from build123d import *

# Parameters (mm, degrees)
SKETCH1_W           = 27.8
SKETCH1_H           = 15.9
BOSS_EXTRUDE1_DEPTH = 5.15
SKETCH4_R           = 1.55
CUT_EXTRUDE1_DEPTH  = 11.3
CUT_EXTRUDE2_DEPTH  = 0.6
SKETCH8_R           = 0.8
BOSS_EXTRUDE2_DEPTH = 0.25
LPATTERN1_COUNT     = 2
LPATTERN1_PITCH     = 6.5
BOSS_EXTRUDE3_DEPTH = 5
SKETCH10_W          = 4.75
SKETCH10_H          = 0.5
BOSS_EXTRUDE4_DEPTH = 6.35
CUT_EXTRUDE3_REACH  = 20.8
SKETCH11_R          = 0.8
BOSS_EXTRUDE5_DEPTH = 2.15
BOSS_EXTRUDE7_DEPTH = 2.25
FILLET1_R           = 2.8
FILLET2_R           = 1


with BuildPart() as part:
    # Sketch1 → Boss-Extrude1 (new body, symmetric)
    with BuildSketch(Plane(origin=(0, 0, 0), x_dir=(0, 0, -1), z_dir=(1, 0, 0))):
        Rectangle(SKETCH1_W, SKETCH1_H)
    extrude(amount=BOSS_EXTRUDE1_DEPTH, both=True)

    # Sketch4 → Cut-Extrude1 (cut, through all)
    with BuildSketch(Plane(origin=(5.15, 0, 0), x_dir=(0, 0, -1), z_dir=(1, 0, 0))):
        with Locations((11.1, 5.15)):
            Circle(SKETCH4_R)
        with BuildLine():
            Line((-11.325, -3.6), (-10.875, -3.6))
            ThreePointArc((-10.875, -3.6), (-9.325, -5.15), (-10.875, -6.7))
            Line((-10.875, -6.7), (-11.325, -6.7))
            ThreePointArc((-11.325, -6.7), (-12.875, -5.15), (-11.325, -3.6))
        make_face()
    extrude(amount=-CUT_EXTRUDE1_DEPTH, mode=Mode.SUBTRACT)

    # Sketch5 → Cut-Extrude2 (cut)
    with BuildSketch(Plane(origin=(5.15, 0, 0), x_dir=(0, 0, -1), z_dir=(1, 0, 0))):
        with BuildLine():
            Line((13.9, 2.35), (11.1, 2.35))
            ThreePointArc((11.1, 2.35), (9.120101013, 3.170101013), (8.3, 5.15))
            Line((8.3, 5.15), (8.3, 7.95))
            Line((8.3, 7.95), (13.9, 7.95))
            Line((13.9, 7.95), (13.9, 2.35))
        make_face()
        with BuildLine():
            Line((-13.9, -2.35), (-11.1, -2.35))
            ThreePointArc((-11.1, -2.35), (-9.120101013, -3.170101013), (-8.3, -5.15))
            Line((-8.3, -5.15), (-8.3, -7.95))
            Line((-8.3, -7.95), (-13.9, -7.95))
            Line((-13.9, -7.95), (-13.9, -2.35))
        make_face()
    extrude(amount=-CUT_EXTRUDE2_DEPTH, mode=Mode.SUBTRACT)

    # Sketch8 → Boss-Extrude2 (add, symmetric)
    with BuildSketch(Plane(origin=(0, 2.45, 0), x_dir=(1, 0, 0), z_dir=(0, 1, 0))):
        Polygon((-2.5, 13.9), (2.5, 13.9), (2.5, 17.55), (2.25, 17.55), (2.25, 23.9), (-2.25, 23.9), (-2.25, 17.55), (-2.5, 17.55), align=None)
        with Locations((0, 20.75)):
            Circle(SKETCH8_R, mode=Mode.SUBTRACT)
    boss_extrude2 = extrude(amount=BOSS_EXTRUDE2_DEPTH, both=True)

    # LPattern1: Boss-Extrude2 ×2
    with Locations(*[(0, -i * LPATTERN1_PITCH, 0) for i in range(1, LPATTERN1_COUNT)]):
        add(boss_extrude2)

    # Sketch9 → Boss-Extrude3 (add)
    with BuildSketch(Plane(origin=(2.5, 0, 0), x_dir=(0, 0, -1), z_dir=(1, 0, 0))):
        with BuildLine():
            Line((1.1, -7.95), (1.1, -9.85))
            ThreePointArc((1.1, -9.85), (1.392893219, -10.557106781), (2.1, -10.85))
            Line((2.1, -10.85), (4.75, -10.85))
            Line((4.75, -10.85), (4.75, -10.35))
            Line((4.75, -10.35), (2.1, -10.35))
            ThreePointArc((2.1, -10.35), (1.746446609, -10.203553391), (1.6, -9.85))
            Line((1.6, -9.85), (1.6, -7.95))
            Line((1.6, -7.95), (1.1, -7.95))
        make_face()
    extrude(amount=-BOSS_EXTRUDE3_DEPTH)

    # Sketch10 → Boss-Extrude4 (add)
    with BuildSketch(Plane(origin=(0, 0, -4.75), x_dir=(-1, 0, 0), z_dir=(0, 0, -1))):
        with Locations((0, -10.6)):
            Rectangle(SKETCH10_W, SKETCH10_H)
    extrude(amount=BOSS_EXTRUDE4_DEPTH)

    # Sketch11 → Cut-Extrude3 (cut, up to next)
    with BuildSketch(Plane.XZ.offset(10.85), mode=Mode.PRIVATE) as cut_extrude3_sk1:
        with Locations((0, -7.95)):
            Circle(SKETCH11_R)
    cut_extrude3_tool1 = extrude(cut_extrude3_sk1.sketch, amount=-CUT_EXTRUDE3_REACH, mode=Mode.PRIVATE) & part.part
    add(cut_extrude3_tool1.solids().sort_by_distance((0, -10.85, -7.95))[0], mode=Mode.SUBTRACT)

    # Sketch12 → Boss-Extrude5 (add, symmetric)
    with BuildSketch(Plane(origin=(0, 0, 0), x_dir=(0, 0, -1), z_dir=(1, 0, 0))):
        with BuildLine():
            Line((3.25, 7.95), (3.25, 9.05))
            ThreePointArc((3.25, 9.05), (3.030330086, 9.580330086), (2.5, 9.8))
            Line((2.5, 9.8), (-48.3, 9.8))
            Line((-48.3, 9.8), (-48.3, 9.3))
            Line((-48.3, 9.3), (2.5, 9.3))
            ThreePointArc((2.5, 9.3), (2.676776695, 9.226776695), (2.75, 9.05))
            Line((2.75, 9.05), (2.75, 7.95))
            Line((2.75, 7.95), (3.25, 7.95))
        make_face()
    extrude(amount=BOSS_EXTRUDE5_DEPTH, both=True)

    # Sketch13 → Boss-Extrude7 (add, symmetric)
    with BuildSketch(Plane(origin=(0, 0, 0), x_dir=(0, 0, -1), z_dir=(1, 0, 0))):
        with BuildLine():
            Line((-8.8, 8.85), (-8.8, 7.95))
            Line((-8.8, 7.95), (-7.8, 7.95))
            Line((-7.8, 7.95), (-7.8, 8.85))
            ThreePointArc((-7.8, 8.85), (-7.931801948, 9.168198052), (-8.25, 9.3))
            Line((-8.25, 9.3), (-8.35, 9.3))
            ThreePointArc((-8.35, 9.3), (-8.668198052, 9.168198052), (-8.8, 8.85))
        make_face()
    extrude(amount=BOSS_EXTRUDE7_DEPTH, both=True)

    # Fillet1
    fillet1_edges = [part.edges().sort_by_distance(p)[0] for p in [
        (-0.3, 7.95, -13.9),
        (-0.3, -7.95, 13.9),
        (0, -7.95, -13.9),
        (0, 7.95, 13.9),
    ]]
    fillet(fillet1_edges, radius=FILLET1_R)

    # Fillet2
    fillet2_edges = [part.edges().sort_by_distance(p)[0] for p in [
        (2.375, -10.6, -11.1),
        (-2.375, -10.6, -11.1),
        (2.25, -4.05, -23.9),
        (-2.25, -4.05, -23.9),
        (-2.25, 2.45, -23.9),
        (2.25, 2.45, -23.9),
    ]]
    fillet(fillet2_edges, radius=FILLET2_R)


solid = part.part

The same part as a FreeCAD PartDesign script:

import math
import FreeCAD as App
import Part
import Sketcher
from FreeCAD import Vector


def edges_at(feature, points):
    """Names of the edges that pass closest to the given points."""
    edges = feature.Shape.Edges
    near = lambda p: min(range(len(edges)), key=lambda i: edges[i].distToShape(Part.Vertex(*p))[0])
    return sorted({f"Edge{near(p) + 1}" for p in points})


def add_polygon(sketch, points):
    """Adds a closed chain of lines whose ends are joined by coincident constraints."""
    first, n = sketch.GeometryCount, len(points)
    for a, b in zip(points, points[1:] + points[:1]):
        sketch.addGeometry(Part.LineSegment(App.Vector(*a, 0), App.Vector(*b, 0)), False)
    for i in range(n):
        sketch.addConstraint(Sketcher.Constraint("Coincident", first + i, 2, first + (i + 1) % n, 1))

doc = App.newDocument("Part")
body = doc.addObject("PartDesign::Body", "Body")

sketch1 = body.newObject("Sketcher::SketchObject", "Sketch")
sketch1.AttachmentSupport = (doc.getObject("YZ_Plane"), [""])
sketch1.MapMode = "FlatFace"
add_polygon(sketch1, [(7.95, 13.9), (-7.95, 13.9), (-7.95, -13.9), (7.95, -13.9)])
sketch1.addConstraint(Sketcher.Constraint("Horizontal", 0))
sketch1.addConstraint(Sketcher.Constraint("Vertical", 1))
sketch1.addConstraint(Sketcher.Constraint("Horizontal", 2))
sketch1.addConstraint(Sketcher.Constraint("Vertical", 3))
sketch1.addConstraint(Sketcher.Constraint("Symmetric", 0, 2, 2, 2, -1, 1))
sketch1.addConstraint(Sketcher.Constraint("DistanceX", 0, 2, 0, 1, 15.9))
sketch1.addConstraint(Sketcher.Constraint("DistanceY", 1, 2, 1, 1, 27.8))
pad1 = body.newObject("PartDesign::Pad", "Pad")
pad1.Profile = sketch1
pad1.Length = 10.3
pad1.Midplane = True

sketch2 = body.newObject("Sketcher::SketchObject", "Sketch001")
sketch2.AttachmentSupport = (doc.getObject("YZ_Plane"), [""])
sketch2.MapMode = "FlatFace"
sketch2.AttachmentOffset = App.Placement(Vector(0, 0, 5.15), App.Rotation())
sketch2.addGeometry(Part.Circle(Vector(5.15, -11.1, 0), Vector(0, 0, 1), 1.55), False)
sketch2.addGeometry(Part.LineSegment(Vector(-3.6, 10.875, 0), Vector(-3.6, 11.325, 0)), False)
sketch2.addGeometry(Part.ArcOfCircle(Part.Circle(Vector(-5.15, 11.325, 0), Vector(0, 0, 1), 1.55), math.radians(0), math.radians(180)), False)
sketch2.addGeometry(Part.LineSegment(Vector(-6.7, 11.325, 0), Vector(-6.7, 10.875, 0)), False)
sketch2.addGeometry(Part.ArcOfCircle(Part.Circle(Vector(-5.15, 10.875, 0), Vector(0, 0, 1), 1.55), math.radians(180), math.radians(360)), False)
sketch2.addConstraint(Sketcher.Constraint("Tangent", 1, 2, 2, 1))
sketch2.addConstraint(Sketcher.Constraint("Tangent", 2, 2, 3, 1))
sketch2.addConstraint(Sketcher.Constraint("Tangent", 3, 2, 4, 1))
sketch2.addConstraint(Sketcher.Constraint("Tangent", 4, 2, 1, 1))
sketch2.addConstraint(Sketcher.Constraint("Vertical", 1))
sketch2.addConstraint(Sketcher.Constraint("Vertical", 3))
sketch2.addConstraint(Sketcher.Constraint("Equal", 0, 2))
sketch2.addConstraint(Sketcher.Constraint("Diameter", 0, 3.1))
sketch2.addConstraint(Sketcher.Constraint("DistanceY", 1, 1, 1, 2, 0.45))
sketch2.addConstraint(Sketcher.Constraint("DistanceY", 0, 3, -1, 1, 11.1))
sketch2.addConstraint(Sketcher.Constraint("DistanceX", 1, 2, -1, 1, 3.6))
sketch2.addConstraint(Sketcher.Constraint("DistanceX", 2, 3, 0, 3, 10.3))
sketch2.addConstraint(Sketcher.Constraint("DistanceY", -1, 1, 2, 3, 11.325))
pocket1 = body.newObject("PartDesign::Pocket", "Pocket")
pocket1.Profile = sketch2
pocket1.Type = "ThroughAll"

sketch3 = body.newObject("Sketcher::SketchObject", "Sketch002")
sketch3.AttachmentSupport = (doc.getObject("YZ_Plane"), [""])
sketch3.MapMode = "FlatFace"
sketch3.AttachmentOffset = App.Placement(Vector(0, 0, 5.15), App.Rotation())
sketch3.addGeometry(Part.LineSegment(Vector(2.35, -11.1, 0), Vector(2.35, -13.9, 0)), False)
sketch3.addGeometry(Part.LineSegment(Vector(2.35, -13.9, 0), Vector(7.95, -13.9, 0)), False)
sketch3.addGeometry(Part.LineSegment(Vector(7.95, -13.9, 0), Vector(7.95, -8.3, 0)), False)
sketch3.addGeometry(Part.LineSegment(Vector(7.95, -8.3, 0), Vector(5.15, -8.3, 0)), False)
sketch3.addGeometry(Part.ArcOfCircle(Part.Circle(Vector(5.15, -11.1, 0), Vector(0, 0, 1), 2.8), math.radians(90), math.radians(180)), False)
sketch3.addGeometry(Part.LineSegment(Vector(-2.35, 11.1, 0), Vector(-2.35, 13.9, 0)), False)
sketch3.addGeometry(Part.LineSegment(Vector(-2.35, 13.9, 0), Vector(-7.95, 13.9, 0)), False)
sketch3.addGeometry(Part.LineSegment(Vector(-7.95, 13.9, 0), Vector(-7.95, 8.3, 0)), False)
sketch3.addGeometry(Part.LineSegment(Vector(-7.95, 8.3, 0), Vector(-5.15, 8.3, 0)), False)
sketch3.addGeometry(Part.ArcOfCircle(Part.Circle(Vector(-5.15, 11.1, 0), Vector(0, 0, 1), 2.8), math.radians(-90), math.radians(0)), False)
sketch3.addConstraint(Sketcher.Constraint("Coincident", 0, 2, 1, 1))
sketch3.addConstraint(Sketcher.Constraint("Coincident", 1, 2, 2, 1))
sketch3.addConstraint(Sketcher.Constraint("Coincident", 2, 2, 3, 1))
sketch3.addConstraint(Sketcher.Constraint("Tangent", 3, 2, 4, 1))
sketch3.addConstraint(Sketcher.Constraint("Tangent", 4, 2, 0, 1))
sketch3.addConstraint(Sketcher.Constraint("Coincident", 5, 2, 6, 1))
sketch3.addConstraint(Sketcher.Constraint("Coincident", 6, 2, 7, 1))
sketch3.addConstraint(Sketcher.Constraint("Coincident", 7, 2, 8, 1))
sketch3.addConstraint(Sketcher.Constraint("Tangent", 8, 2, 9, 1))
sketch3.addConstraint(Sketcher.Constraint("Tangent", 9, 2, 5, 1))
sketch3.addConstraint(Sketcher.Constraint("Vertical", 0))
sketch3.addConstraint(Sketcher.Constraint("Horizontal", 1))
sketch3.addConstraint(Sketcher.Constraint("Vertical", 2))
sketch3.addConstraint(Sketcher.Constraint("Horizontal", 3))
sketch3.addConstraint(Sketcher.Constraint("Vertical", 5))
sketch3.addConstraint(Sketcher.Constraint("Horizontal", 6))
sketch3.addConstraint(Sketcher.Constraint("Vertical", 7))
sketch3.addConstraint(Sketcher.Constraint("Horizontal", 8))
sketch3.addConstraint(Sketcher.Constraint("Equal", 4, 9))
sketch3.addConstraint(Sketcher.Constraint("Symmetric", 4, 3, 9, 3, -1, 1))
sketch3.addConstraint(Sketcher.Constraint("Symmetric", 1, 2, 6, 2, -1, 1))
sketch3.addConstraint(Sketcher.Constraint("Equal", 8, 0))
sketch3.addConstraint(Sketcher.Constraint("Radius", 4, 2.8))
sketch3.addConstraint(Sketcher.Constraint("DistanceX", 1, 1, 1, 2, 5.6))
sketch3.addConstraint(Sketcher.Constraint("DistanceY", 0, 2, 9, 3, 25.0))
sketch3.addConstraint(Sketcher.Constraint("DistanceX", 9, 3, 4, 3, 10.3))
pocket2 = body.newObject("PartDesign::Pocket", "Pocket001")
pocket2.Profile = sketch3
pocket2.Length = 0.6

sketch4 = body.newObject("Sketcher::SketchObject", "Sketch003")
sketch4.AttachmentSupport = (doc.getObject("XZ_Plane"), [""])
sketch4.MapMode = "FlatFace"
sketch4.AttachmentOffset = App.Placement(Vector(0, 0, -2.45), App.Rotation())
add_polygon(sketch4, [(-2.5, -13.9), (2.5, -13.9), (2.5, -17.55), (2.25, -17.55), (2.25, -23.9), (-2.25, -23.9), (-2.25, -17.55), (-2.5, -17.55)])
sketch4.addGeometry(Part.Circle(Vector(0, -20.75, 0), Vector(0, 0, 1), 0.8), False)
sketch4.addConstraint(Sketcher.Constraint("Horizontal", 0))
sketch4.addConstraint(Sketcher.Constraint("Vertical", 1))
sketch4.addConstraint(Sketcher.Constraint("Horizontal", 2))
sketch4.addConstraint(Sketcher.Constraint("Vertical", 3))
sketch4.addConstraint(Sketcher.Constraint("Horizontal", 4))
sketch4.addConstraint(Sketcher.Constraint("Vertical", 5))
sketch4.addConstraint(Sketcher.Constraint("Horizontal", 6))
sketch4.addConstraint(Sketcher.Constraint("Vertical", 7))
sketch4.addConstraint(Sketcher.Constraint("Symmetric", 2, 2, 5, 2, -2))
sketch4.addConstraint(Sketcher.Constraint("PointOnObject", 8, 3, -2))
sketch4.addConstraint(Sketcher.Constraint("Equal", 2, 6))
sketch4.addConstraint(Sketcher.Constraint("Diameter", 8, 1.6))
sketch4.addConstraint(Sketcher.Constraint("DistanceX", 0, 1, 0, 2, 5.0))
sketch4.addConstraint(Sketcher.Constraint("DistanceX", 4, 2, 4, 1, 4.5))
sketch4.addConstraint(Sketcher.Constraint("DistanceY", 3, 2, 0, 2, 10.0))
sketch4.addConstraint(Sketcher.Constraint("DistanceY", 1, 2, 1, 1, 3.65))
sketch4.addConstraint(Sketcher.Constraint("DistanceY", 0, 2, -1, 1, 13.9))
sketch4.addConstraint(Sketcher.Constraint("DistanceY", 8, 3, 1, 2, 3.2))
pad2 = body.newObject("PartDesign::Pad", "Pad001")
pad2.Profile = sketch4
pad2.Length = 0.5
pad2.Midplane = True
doc.recompute()

linearpattern = body.newObject("PartDesign::LinearPattern", "LinearPattern")
linearpattern.Originals = [pad2]
linearpattern.Direction = (doc.getObject("Y_Axis"), [""])
linearpattern.Mode = "offset"
linearpattern.Offset = 6.5
linearpattern.Occurrences = 2
linearpattern.Reversed = True
body.Tip = linearpattern

sketch5 = body.newObject("Sketcher::SketchObject", "Sketch004")
sketch5.AttachmentSupport = (doc.getObject("YZ_Plane"), [""])
sketch5.MapMode = "FlatFace"
sketch5.AttachmentOffset = App.Placement(Vector(0, 0, 2.5), App.Rotation())
sketch5.addGeometry(Part.LineSegment(Vector(-7.95, -1.1, 0), Vector(-9.85, -1.1, 0)), False)
sketch5.addGeometry(Part.ArcOfCircle(Part.Circle(Vector(-9.85, -2.1, 0), Vector(0, 0, 1), 1), math.radians(90), math.radians(180)), False)
sketch5.addGeometry(Part.LineSegment(Vector(-10.85, -2.1, 0), Vector(-10.85, -4.75, 0)), False)
sketch5.addGeometry(Part.LineSegment(Vector(-10.85, -4.75, 0), Vector(-10.35, -4.75, 0)), False)
sketch5.addGeometry(Part.LineSegment(Vector(-10.35, -4.75, 0), Vector(-10.35, -2.1, 0)), False)
sketch5.addGeometry(Part.ArcOfCircle(Part.Circle(Vector(-9.85, -2.1, 0), Vector(0, 0, 1), 0.5), math.radians(90), math.radians(180)), False)
sketch5.addGeometry(Part.LineSegment(Vector(-9.85, -1.6, 0), Vector(-7.95, -1.6, 0)), False)
sketch5.addGeometry(Part.LineSegment(Vector(-7.95, -1.6, 0), Vector(-7.95, -1.1, 0)), False)
sketch5.addConstraint(Sketcher.Constraint("Tangent", 0, 2, 1, 1))
sketch5.addConstraint(Sketcher.Constraint("Tangent", 1, 2, 2, 1))
sketch5.addConstraint(Sketcher.Constraint("Coincident", 2, 2, 3, 1))
sketch5.addConstraint(Sketcher.Constraint("Coincident", 3, 2, 4, 1))
sketch5.addConstraint(Sketcher.Constraint("Tangent", 4, 2, 5, 2))
sketch5.addConstraint(Sketcher.Constraint("Tangent", 5, 1, 6, 1))
sketch5.addConstraint(Sketcher.Constraint("Coincident", 6, 2, 7, 1))
sketch5.addConstraint(Sketcher.Constraint("Coincident", 7, 2, 0, 1))
sketch5.addConstraint(Sketcher.Constraint("Horizontal", 0))
sketch5.addConstraint(Sketcher.Constraint("Vertical", 2))
sketch5.addConstraint(Sketcher.Constraint("Horizontal", 3))
sketch5.addConstraint(Sketcher.Constraint("Vertical", 4))
sketch5.addConstraint(Sketcher.Constraint("Horizontal", 6))
sketch5.addConstraint(Sketcher.Constraint("Vertical", 7))
sketch5.addConstraint(Sketcher.Constraint("Coincident", 5, 3, 1, 3))
sketch5.addConstraint(Sketcher.Constraint("Radius", 1, 1.0))
sketch5.addConstraint(Sketcher.Constraint("Radius", 5, 0.5))
sketch5.addConstraint(Sketcher.Constraint("DistanceX", 0, 2, 0, 1, 1.9))
sketch5.addConstraint(Sketcher.Constraint("DistanceY", 2, 2, 2, 1, 2.65))
sketch5.addConstraint(Sketcher.Constraint("DistanceY", 1, 3, -1, 1, 2.1))
sketch5.addConstraint(Sketcher.Constraint("DistanceX", 1, 3, -1, 1, 9.85))
pad3 = body.newObject("PartDesign::Pad", "Pad002")
pad3.Profile = sketch5
pad3.Length = 5
pad3.Reversed = True

sketch6 = body.newObject("Sketcher::SketchObject", "Sketch005")
sketch6.AttachmentSupport = (doc.getObject("XY_Plane"), [""])
sketch6.MapMode = "FlatFace"
sketch6.AttachmentOffset = App.Placement(Vector(0, 0, -4.75), App.Rotation())
add_polygon(sketch6, [(2.375, -10.35), (2.375, -10.85), (-2.375, -10.85), (-2.375, -10.35)])
sketch6.addConstraint(Sketcher.Constraint("Vertical", 0))
sketch6.addConstraint(Sketcher.Constraint("Horizontal", 1))
sketch6.addConstraint(Sketcher.Constraint("Vertical", 2))
sketch6.addConstraint(Sketcher.Constraint("Horizontal", 3))
sketch6.addConstraint(Sketcher.Constraint("DistanceY", 0, 2, 0, 1, 0.5))
sketch6.addConstraint(Sketcher.Constraint("DistanceX", 1, 2, 1, 1, 4.75))
sketch6.addConstraint(Sketcher.Constraint("DistanceY", 0, 2, -1, 1, 10.85))
sketch6.addConstraint(Sketcher.Constraint("DistanceX", -1, 1, 0, 2, 2.375))
pad4 = body.newObject("PartDesign::Pad", "Pad003")
pad4.Profile = sketch6
pad4.Length = 6.35
pad4.Reversed = True

sketch7 = body.newObject("Sketcher::SketchObject", "Sketch006")
sketch7.AttachmentSupport = (doc.getObject("XZ_Plane"), [""])
sketch7.MapMode = "FlatFace"
sketch7.AttachmentOffset = App.Placement(Vector(0, 0, 10.85), App.Rotation())
sketch7.addGeometry(Part.Circle(Vector(0, -7.95, 0), Vector(0, 0, 1), 0.8), False)
sketch7.addConstraint(Sketcher.Constraint("PointOnObject", 0, 3, -2))
sketch7.addConstraint(Sketcher.Constraint("Diameter", 0, 1.6))
sketch7.addConstraint(Sketcher.Constraint("DistanceY", 0, 3, -1, 1, 7.95))
pocket3 = body.newObject("PartDesign::Pocket", "Pocket002")
pocket3.Profile = sketch7
pocket3.Type = "UpToFirst"

sketch8 = body.newObject("Sketcher::SketchObject", "Sketch007")
sketch8.AttachmentSupport = (doc.getObject("YZ_Plane"), [""])
sketch8.MapMode = "FlatFace"
sketch8.addGeometry(Part.LineSegment(Vector(7.95, -3.25, 0), Vector(9.05, -3.25, 0)), False)
sketch8.addGeometry(Part.ArcOfCircle(Part.Circle(Vector(9.05, -2.5, 0), Vector(0, 0, 1), 0.75), math.radians(-90), math.radians(0)), False)
sketch8.addGeometry(Part.LineSegment(Vector(9.8, -2.5, 0), Vector(9.8, 48.3, 0)), False)
sketch8.addGeometry(Part.LineSegment(Vector(9.8, 48.3, 0), Vector(9.3, 48.3, 0)), False)
sketch8.addGeometry(Part.LineSegment(Vector(9.3, 48.3, 0), Vector(9.3, -2.5, 0)), False)
sketch8.addGeometry(Part.ArcOfCircle(Part.Circle(Vector(9.05, -2.5, 0), Vector(0, 0, 1), 0.25), math.radians(-90), math.radians(0)), False)
sketch8.addGeometry(Part.LineSegment(Vector(9.05, -2.75, 0), Vector(7.95, -2.75, 0)), False)
sketch8.addGeometry(Part.LineSegment(Vector(7.95, -2.75, 0), Vector(7.95, -3.25, 0)), False)
sketch8.addConstraint(Sketcher.Constraint("Tangent", 0, 2, 1, 1))
sketch8.addConstraint(Sketcher.Constraint("Tangent", 1, 2, 2, 1))
sketch8.addConstraint(Sketcher.Constraint("Coincident", 2, 2, 3, 1))
sketch8.addConstraint(Sketcher.Constraint("Coincident", 3, 2, 4, 1))
sketch8.addConstraint(Sketcher.Constraint("Tangent", 4, 2, 5, 2))
sketch8.addConstraint(Sketcher.Constraint("Tangent", 5, 1, 6, 1))
sketch8.addConstraint(Sketcher.Constraint("Coincident", 6, 2, 7, 1))
sketch8.addConstraint(Sketcher.Constraint("Coincident", 7, 2, 0, 1))
sketch8.addConstraint(Sketcher.Constraint("Horizontal", 0))
sketch8.addConstraint(Sketcher.Constraint("Vertical", 2))
sketch8.addConstraint(Sketcher.Constraint("Horizontal", 3))
sketch8.addConstraint(Sketcher.Constraint("Vertical", 4))
sketch8.addConstraint(Sketcher.Constraint("Horizontal", 6))
sketch8.addConstraint(Sketcher.Constraint("Vertical", 7))
sketch8.addConstraint(Sketcher.Constraint("Coincident", 5, 3, 1, 3))
sketch8.addConstraint(Sketcher.Constraint("Radius", 1, 0.75))
sketch8.addConstraint(Sketcher.Constraint("Radius", 5, 0.25))
sketch8.addConstraint(Sketcher.Constraint("DistanceX", 0, 1, 0, 2, 1.1))
sketch8.addConstraint(Sketcher.Constraint("DistanceY", 2, 1, 2, 2, 50.8))
sketch8.addConstraint(Sketcher.Constraint("DistanceY", 1, 3, -1, 1, 2.5))
sketch8.addConstraint(Sketcher.Constraint("DistanceX", -1, 1, 1, 2, 9.8))
pad5 = body.newObject("PartDesign::Pad", "Pad004")
pad5.Profile = sketch8
pad5.Length = 4.3
pad5.Midplane = True

sketch9 = body.newObject("Sketcher::SketchObject", "Sketch008")
sketch9.AttachmentSupport = (doc.getObject("YZ_Plane"), [""])
sketch9.MapMode = "FlatFace"
sketch9.addGeometry(Part.LineSegment(Vector(8.85, 8.8, 0), Vector(7.95, 8.8, 0)), False)
sketch9.addGeometry(Part.LineSegment(Vector(7.95, 8.8, 0), Vector(7.95, 7.8, 0)), False)
sketch9.addGeometry(Part.LineSegment(Vector(7.95, 7.8, 0), Vector(8.85, 7.8, 0)), False)
sketch9.addGeometry(Part.ArcOfCircle(Part.Circle(Vector(8.85, 8.25, 0), Vector(0, 0, 1), 0.45), math.radians(-90), math.radians(0)), False)
sketch9.addGeometry(Part.LineSegment(Vector(9.3, 8.25, 0), Vector(9.3, 8.35, 0)), False)
sketch9.addGeometry(Part.ArcOfCircle(Part.Circle(Vector(8.85, 8.35, 0), Vector(0, 0, 1), 0.45), math.radians(0), math.radians(90)), False)
sketch9.addConstraint(Sketcher.Constraint("Coincident", 0, 2, 1, 1))
sketch9.addConstraint(Sketcher.Constraint("Coincident", 1, 2, 2, 1))
sketch9.addConstraint(Sketcher.Constraint("Tangent", 2, 2, 3, 1))
sketch9.addConstraint(Sketcher.Constraint("Tangent", 3, 2, 4, 1))
sketch9.addConstraint(Sketcher.Constraint("Tangent", 4, 2, 5, 1))
sketch9.addConstraint(Sketcher.Constraint("Tangent", 5, 2, 0, 1))
sketch9.addConstraint(Sketcher.Constraint("Horizontal", 0))
sketch9.addConstraint(Sketcher.Constraint("Vertical", 1))
sketch9.addConstraint(Sketcher.Constraint("Horizontal", 2))
sketch9.addConstraint(Sketcher.Constraint("Vertical", 4))
sketch9.addConstraint(Sketcher.Constraint("Equal", 3, 5))
sketch9.addConstraint(Sketcher.Constraint("DistanceY", 1, 2, 1, 1, 1.0))
sketch9.addConstraint(Sketcher.Constraint("Radius", 3, 0.45))
sketch9.addConstraint(Sketcher.Constraint("DistanceX", 0, 2, 0, 1, 0.9))
sketch9.addConstraint(Sketcher.Constraint("DistanceY", -1, 1, 0, 2, 8.8))
sketch9.addConstraint(Sketcher.Constraint("DistanceX", -1, 1, 3, 2, 9.3))
pad6 = body.newObject("PartDesign::Pad", "Pad005")
pad6.Profile = sketch9
pad6.Length = 4.5
pad6.Midplane = True
doc.recompute()

fillet = body.newObject("PartDesign::Fillet", "Fillet")
fillet.Base = (pad6, edges_at(pad6, [
    (-0.3, 7.95, -13.9),
    (-0.3, -7.95, 13.9),
    (0, -7.95, -13.9),
    (0, 7.95, 13.9),
]))
fillet.Radius = 2.8
doc.recompute()

fillet2 = body.newObject("PartDesign::Fillet", "Fillet001")
fillet2.Base = (fillet, edges_at(fillet, [
    (2.375, -10.6, -11.1),
    (-2.375, -10.6, -11.1),
    (2.25, -4.05, -23.9),
    (-2.25, -4.05, -23.9),
    (-2.25, 2.45, -23.9),
    (2.25, 2.45, -23.9),
]))
fillet2.Radius = 1

doc.recompute()
